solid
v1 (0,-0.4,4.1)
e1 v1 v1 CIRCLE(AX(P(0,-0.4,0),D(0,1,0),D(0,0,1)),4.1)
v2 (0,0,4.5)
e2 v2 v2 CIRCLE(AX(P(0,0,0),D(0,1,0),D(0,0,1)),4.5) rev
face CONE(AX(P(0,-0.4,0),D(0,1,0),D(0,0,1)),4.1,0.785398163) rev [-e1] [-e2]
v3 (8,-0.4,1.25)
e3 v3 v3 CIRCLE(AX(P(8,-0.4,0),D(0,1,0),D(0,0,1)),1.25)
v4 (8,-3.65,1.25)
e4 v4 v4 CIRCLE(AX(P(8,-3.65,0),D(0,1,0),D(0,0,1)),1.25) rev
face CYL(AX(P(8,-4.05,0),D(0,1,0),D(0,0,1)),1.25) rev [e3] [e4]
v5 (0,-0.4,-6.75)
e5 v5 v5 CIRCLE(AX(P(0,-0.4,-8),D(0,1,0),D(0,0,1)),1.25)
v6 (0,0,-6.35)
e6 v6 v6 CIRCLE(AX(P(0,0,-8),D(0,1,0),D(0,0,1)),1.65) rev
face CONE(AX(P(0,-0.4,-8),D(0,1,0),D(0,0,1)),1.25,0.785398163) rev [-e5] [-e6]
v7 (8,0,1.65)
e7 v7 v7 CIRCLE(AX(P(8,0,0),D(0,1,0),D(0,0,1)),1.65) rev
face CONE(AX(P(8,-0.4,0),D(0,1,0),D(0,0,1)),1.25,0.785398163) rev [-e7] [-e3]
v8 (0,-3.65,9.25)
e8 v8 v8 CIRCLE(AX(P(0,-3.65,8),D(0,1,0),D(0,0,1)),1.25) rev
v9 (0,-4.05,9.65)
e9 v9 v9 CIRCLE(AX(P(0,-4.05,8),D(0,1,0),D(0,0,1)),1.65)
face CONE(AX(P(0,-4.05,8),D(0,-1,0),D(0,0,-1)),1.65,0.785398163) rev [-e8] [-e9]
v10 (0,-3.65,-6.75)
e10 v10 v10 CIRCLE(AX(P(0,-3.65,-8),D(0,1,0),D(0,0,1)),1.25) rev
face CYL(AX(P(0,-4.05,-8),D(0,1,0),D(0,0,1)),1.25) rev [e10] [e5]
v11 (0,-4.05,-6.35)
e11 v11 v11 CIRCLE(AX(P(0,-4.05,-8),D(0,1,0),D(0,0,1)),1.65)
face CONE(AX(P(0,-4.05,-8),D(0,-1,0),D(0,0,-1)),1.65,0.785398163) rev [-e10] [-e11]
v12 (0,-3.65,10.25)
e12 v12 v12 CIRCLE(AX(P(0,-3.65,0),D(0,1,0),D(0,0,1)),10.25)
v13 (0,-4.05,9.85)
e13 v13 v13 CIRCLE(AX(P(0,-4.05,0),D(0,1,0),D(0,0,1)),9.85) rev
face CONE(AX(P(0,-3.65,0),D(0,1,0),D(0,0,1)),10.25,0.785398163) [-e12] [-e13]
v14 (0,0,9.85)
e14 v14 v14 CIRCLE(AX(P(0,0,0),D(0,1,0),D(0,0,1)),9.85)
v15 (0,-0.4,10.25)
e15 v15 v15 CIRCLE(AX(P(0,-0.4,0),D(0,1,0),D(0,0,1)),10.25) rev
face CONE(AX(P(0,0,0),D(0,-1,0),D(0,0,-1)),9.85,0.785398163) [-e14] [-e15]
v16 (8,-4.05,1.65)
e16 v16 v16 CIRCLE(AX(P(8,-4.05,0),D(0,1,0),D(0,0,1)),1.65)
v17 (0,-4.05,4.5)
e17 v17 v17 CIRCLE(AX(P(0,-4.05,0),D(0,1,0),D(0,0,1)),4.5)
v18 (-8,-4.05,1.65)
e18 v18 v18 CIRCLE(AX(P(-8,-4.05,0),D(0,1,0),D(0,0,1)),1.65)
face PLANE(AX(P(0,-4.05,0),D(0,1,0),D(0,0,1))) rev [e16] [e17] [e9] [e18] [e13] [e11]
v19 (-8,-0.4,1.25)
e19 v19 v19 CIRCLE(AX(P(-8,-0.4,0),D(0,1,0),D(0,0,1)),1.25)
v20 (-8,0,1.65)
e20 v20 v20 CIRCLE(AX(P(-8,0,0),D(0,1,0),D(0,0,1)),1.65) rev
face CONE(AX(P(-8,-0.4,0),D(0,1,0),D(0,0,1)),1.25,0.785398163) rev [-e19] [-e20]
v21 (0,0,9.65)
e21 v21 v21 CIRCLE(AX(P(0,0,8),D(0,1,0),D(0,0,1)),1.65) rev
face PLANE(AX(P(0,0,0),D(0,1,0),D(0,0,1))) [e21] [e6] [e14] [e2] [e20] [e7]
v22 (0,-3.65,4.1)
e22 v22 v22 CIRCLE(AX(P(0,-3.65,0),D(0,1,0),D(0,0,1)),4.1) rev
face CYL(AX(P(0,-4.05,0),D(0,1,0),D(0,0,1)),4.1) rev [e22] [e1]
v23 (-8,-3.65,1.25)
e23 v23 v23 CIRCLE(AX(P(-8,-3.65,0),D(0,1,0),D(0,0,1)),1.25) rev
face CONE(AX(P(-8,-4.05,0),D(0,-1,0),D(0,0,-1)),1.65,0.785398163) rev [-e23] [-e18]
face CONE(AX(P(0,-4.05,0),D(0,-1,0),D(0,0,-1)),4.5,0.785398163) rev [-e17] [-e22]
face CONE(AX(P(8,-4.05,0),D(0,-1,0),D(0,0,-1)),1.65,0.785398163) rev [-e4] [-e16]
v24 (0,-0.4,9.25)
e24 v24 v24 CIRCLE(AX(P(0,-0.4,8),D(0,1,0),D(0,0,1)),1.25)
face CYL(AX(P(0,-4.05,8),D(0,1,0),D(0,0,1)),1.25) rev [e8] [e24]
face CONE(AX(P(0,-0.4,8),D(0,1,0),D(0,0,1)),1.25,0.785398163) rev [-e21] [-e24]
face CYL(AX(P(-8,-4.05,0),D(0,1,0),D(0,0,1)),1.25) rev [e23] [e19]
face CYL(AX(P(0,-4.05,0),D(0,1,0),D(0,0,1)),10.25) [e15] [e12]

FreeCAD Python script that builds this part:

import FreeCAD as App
import Part
import Sketcher

V = App.Vector


def edges_at(feature, points):
    """Names of the edges that pass closest to the given points."""
    edges = feature.Shape.Edges
    near = lambda p: min(range(len(edges)), key=lambda i: edges[i].distToShape(Part.Vertex(*p))[0])
    return sorted({f"Edge{near(p) + 1}" for p in points})

doc = App.newDocument("Part")
body = doc.addObject("PartDesign::Body", "Body")

# Sketch on XZ plane
sketch1 = body.newObject("Sketcher::SketchObject", "Sketch")
sketch1.AttachmentSupport = (doc.getObject("XZ_Plane"), [""])
sketch1.MapMode = "FlatFace"
sketch1.addGeometry([
    Part.Circle(V(0, 0, 0), V(0, 0, 1), 10.2),
    Part.Circle(V(0, 0, 0), V(0, 0, 1), 4.1),
], False)
sketch1.addConstraint([
    Sketcher.Constraint("Coincident", 0, 3, -1, 1),
    Sketcher.Constraint("Coincident", 1, 3, -1, 1),
    Sketcher.Constraint("Diameter", 0, 20.5),
    Sketcher.Constraint("Diameter", 1, 8.2),
])
pad1 = body.newObject("PartDesign::Pad", "Pad")
pad1.Profile = sketch1
pad1.Length = 4.05

# Sketch on XZ plane
sketch2 = body.newObject("Sketcher::SketchObject", "Sketch001")
sketch2.AttachmentSupport = (doc.getObject("XZ_Plane"), [""])
sketch2.MapMode = "FlatFace"
sketch2.addGeometry(Part.Circle(V(0, -8, 0), V(0, 0, 1), 1.2), False)
sketch2.addConstraint([
    Sketcher.Constraint("PointOnObject", 0, 3, -2),
    Sketcher.Constraint("Diameter", 0, 2.5),
    Sketcher.Constraint("DistanceY", 0, 3, -1, 1, 8.0),
])
pocket1 = body.newObject("PartDesign::Pocket", "Pocket")
pocket1.Profile = sketch2
pocket1.Type = "ThroughAll"
pocket1.Reversed = True
doc.recompute()

polarpattern = body.newObject("PartDesign::PolarPattern", "PolarPattern")
polarpattern.Originals = [pocket1]
polarpattern.Axis = (doc.getObject("Y_Axis"), [""])
polarpattern.Angle = 360
polarpattern.Occurrences = 4
body.Tip = polarpattern
doc.recompute()

chamfer = body.newObject("PartDesign::Chamfer", "Chamfer")
chamfer.Base = (polarpattern, edges_at(polarpattern, [
    (-1.25, -4.05, -8),
    (-1.25, 0, -8),
    (-10.25, 0, 0),
    (-8, -4.05, 1.25),
    (-8, 0, 1.25),
    (1.25, -4.05, 8),
    (1.25, 0, 8),
    (8, -4.05, -1.25),
    (8, 0, -1.25),
    (-10.25, -4.05, 0),
    (-4.1, -4.05, 0),
    (-4.1, 0, 0),
]))
chamfer.Size = 0.4

doc.recompute()
